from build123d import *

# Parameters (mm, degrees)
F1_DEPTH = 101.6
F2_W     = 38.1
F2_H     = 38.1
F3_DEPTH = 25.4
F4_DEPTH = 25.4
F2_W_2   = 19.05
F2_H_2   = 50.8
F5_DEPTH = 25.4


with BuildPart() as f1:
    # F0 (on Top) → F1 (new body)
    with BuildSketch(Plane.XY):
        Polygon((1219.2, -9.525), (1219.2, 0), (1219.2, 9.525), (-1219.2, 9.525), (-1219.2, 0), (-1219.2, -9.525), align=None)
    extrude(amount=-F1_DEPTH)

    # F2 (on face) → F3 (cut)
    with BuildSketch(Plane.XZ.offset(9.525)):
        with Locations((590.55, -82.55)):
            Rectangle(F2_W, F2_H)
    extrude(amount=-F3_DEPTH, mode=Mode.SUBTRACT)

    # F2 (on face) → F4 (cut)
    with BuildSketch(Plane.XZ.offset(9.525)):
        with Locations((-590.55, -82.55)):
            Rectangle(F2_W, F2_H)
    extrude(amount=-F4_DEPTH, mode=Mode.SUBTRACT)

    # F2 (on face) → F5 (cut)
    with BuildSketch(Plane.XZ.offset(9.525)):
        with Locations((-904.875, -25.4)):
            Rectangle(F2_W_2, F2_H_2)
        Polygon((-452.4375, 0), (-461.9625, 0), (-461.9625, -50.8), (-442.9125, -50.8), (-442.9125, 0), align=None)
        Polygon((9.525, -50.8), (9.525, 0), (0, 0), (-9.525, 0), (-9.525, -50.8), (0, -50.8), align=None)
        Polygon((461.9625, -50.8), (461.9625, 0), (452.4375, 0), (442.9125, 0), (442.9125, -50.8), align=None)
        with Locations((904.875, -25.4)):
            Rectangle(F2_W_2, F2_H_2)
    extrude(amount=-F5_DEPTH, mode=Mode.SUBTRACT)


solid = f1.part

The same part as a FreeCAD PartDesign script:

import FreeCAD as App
import Part
import Sketcher
from FreeCAD import Vector
Q = App.Units.Quantity

doc = App.newDocument("Part")
body = doc.addObject("PartDesign::Body", "Body")

sketch1 = body.newObject("Sketcher::SketchObject", "Sketch")
sketch1.AttachmentSupport = (doc.getObject("XY_Plane"), [""])
sketch1.MapMode = "FlatFace"
sketch1.addGeometry([
    Part.LineSegment(Vector(1219, -10, 0), Vector(1219, 10, 0)),
    Part.LineSegment(Vector(1219, 10, 0), Vector(-1219, 10, 0)),
    Part.LineSegment(Vector(-1219, 10, 0), Vector(-1219, -10, 0)),
    Part.LineSegment(Vector(-1219, -10, 0), Vector(1219, -10, 0)),
], False)
sketch1.addConstraint([
    Sketcher.Constraint("Coincident", 0, 2, 1, 1),
    Sketcher.Constraint("Coincident", 1, 2, 2, 1),
    Sketcher.Constraint("Coincident", 2, 2, 3, 1),
    Sketcher.Constraint("Coincident", 3, 2, 0, 1),
    Sketcher.Constraint("Vertical", 0),
    Sketcher.Constraint("Horizontal", 1),
    Sketcher.Constraint("Vertical", 2),
    Sketcher.Constraint("Horizontal", 3),
    Sketcher.Constraint("Symmetric", 0, 2, 2, 2, -1, 1),
    Sketcher.Constraint("DistanceX", 1, 2, 1, 1, Q("96 in")),
    Sketcher.Constraint("DistanceY", 0, 1, 0, 2, Q("0.75 in")),
])
pad1 = body.newObject("PartDesign::Pad", "Pad")
pad1.Profile = sketch1
pad1.Length = Q("4 in")
pad1.Reversed = True

sketch2 = body.newObject("Sketcher::SketchObject", "Sketch001")
sketch2.AttachmentSupport = (doc.getObject("XZ_Plane"), [""])
sketch2.MapMode = "FlatFace"
sketch2.AttachmentOffset = App.Placement(Vector(0, 0, 0.375 * 25.4), App.Rotation())
sketch2.addGeometry([
    Part.LineSegment(Vector(572, -64, 0), Vector(572, -102, 0)),
    Part.LineSegment(Vector(572, -102, 0), Vector(610, -102, 0)),
    Part.LineSegment(Vector(610, -102, 0), Vector(610, -64, 0)),
    Part.LineSegment(Vector(610, -64, 0), Vector(572, -64, 0)),
], False)
sketch2.addConstraint([
    Sketcher.Constraint("Coincident", 0, 2, 1, 1),
    Sketcher.Constraint("Coincident", 1, 2, 2, 1),
    Sketcher.Constraint("Coincident", 2, 2, 3, 1),
    Sketcher.Constraint("Coincident", 3, 2, 0, 1),
    Sketcher.Constraint("Vertical", 0),
    Sketcher.Constraint("Horizontal", 1),
    Sketcher.Constraint("Vertical", 2),
    Sketcher.Constraint("Horizontal", 3),
    Sketcher.Constraint("Equal", 3, 0),
    Sketcher.Constraint("DistanceX", 1, 1, 1, 2, Q("1.5 in")),
    Sketcher.Constraint("DistanceY", 0, 2, -1, 1, Q("4 in")),
    Sketcher.Constraint("DistanceX", -1, 1, 1, 2, Q("24 in")),
])
pocket1 = body.newObject("PartDesign::Pocket", "Pocket")
pocket1.Profile = sketch2
pocket1.Length = Q("1 in")

sketch3 = body.newObject("Sketcher::SketchObject", "Sketch002")
sketch3.AttachmentSupport = (doc.getObject("XZ_Plane"), [""])
sketch3.MapMode = "FlatFace"
sketch3.AttachmentOffset = App.Placement(Vector(0, 0, 0.375 * 25.4), App.Rotation())
sketch3.addGeometry([
    Part.LineSegment(Vector(-610, -64, 0), Vector(-610, -102, 0)),
    Part.LineSegment(Vector(-610, -102, 0), Vector(-572, -102, 0)),
    Part.LineSegment(Vector(-572, -102, 0), Vector(-572, -64, 0)),
    Part.LineSegment(Vector(-572, -64, 0), Vector(-610, -64, 0)),
], False)
sketch3.addConstraint([
    Sketcher.Constraint("Coincident", 0, 2, 1, 1),
    Sketcher.Constraint("Coincident", 1, 2, 2, 1),
    Sketcher.Constraint("Coincident", 2, 2, 3, 1),
    Sketcher.Constraint("Coincident", 3, 2, 0, 1),
    Sketcher.Constraint("Vertical", 0),
    Sketcher.Constraint("Horizontal", 1),
    Sketcher.Constraint("Vertical", 2),
    Sketcher.Constraint("Horizontal", 3),
    Sketcher.Constraint("Equal", 3, 0),
    Sketcher.Constraint("DistanceX", 1, 1, 1, 2, Q("1.5 in")),
    Sketcher.Constraint("DistanceX", 0, 2, -1, 1, Q("24 in")),
    Sketcher.Constraint("DistanceY", 0, 2, -1, 1, Q("4 in")),
])
pocket2 = body.newObject("PartDesign::Pocket", "Pocket001")
pocket2.Profile = sketch3
pocket2.Length = Q("1 in")

sketch4 = body.newObject("Sketcher::SketchObject", "Sketch003")
sketch4.AttachmentSupport = (doc.getObject("XZ_Plane"), [""])
sketch4.MapMode = "FlatFace"
sketch4.AttachmentOffset = App.Placement(Vector(0, 0, 0.375 * 25.4), App.Rotation())
sketch4.addGeometry([
    Part.LineSegment(Vector(-914, 0, 0), Vector(-914, -51, 0)),
    Part.LineSegment(Vector(-914, -51, 0), Vector(-895, -51, 0)),
    Part.LineSegment(Vector(-895, -51, 0), Vector(-895, 0, 0)),
    Part.LineSegment(Vector(-895, 0, 0), Vector(-914, 0, 0)),
    Part.LineSegment(Vector(-462, 0, 0), Vector(-462, -51, 0)),
    Part.LineSegment(Vector(-462, -51, 0), Vector(-443, -51, 0)),
    Part.LineSegment(Vector(-443, -51, 0), Vector(-443, 0, 0)),
    Part.LineSegment(Vector(-443, 0, 0), Vector(-462, 0, 0)),
    Part.LineSegment(Vector(10, -51, 0), Vector(10, 0, 0)),
    Part.LineSegment(Vector(10, 0, 0), Vector(-10, 0, 0)),
    Part.LineSegment(Vector(-10, 0, 0), Vector(-10, -51, 0)),
    Part.LineSegment(Vector(-10, -51, 0), Vector(10, -51, 0)),
    Part.LineSegment(Vector(462, -51, 0), Vector(462, 0, 0)),
    Part.LineSegment(Vector(462, 0, 0), Vector(443, 0, 0)),
    Part.LineSegment(Vector(443, 0, 0), Vector(443, -51, 0)),
    Part.LineSegment(Vector(443, -51, 0), Vector(462, -51, 0)),
    Part.LineSegment(Vector(895, 0, 0), Vector(895, -51, 0)),
    Part.LineSegment(Vector(895, -51, 0), Vector(914, -51, 0)),
    Part.LineSegment(Vector(914, -51, 0), Vector(914, 0, 0)),
    Part.LineSegment(Vector(914, 0, 0), Vector(895, 0, 0)),
], False)
sketch4.addConstraint([
    Sketcher.Constraint("Coincident", 0, 2, 1, 1),
    Sketcher.Constraint("Coincident", 1, 2, 2, 1),
    Sketcher.Constraint("Coincident", 2, 2, 3, 1),
    Sketcher.Constraint("Coincident", 3, 2, 0, 1),
    Sketcher.Constraint("Coincident", 4, 2, 5, 1),
    Sketcher.Constraint("Coincident", 5, 2, 6, 1),
    Sketcher.Constraint("Coincident", 6, 2, 7, 1),
    Sketcher.Constraint("Coincident", 7, 2, 4, 1),
    Sketcher.Constraint("Coincident", 8, 2, 9, 1),
    Sketcher.Constraint("Coincident", 9, 2, 10, 1),
    Sketcher.Constraint("Coincident", 10, 2, 11, 1),
    Sketcher.Constraint("Coincident", 11, 2, 8, 1),
    Sketcher.Constraint("Coincident", 12, 2, 13, 1),
    Sketcher.Constraint("Coincident", 13, 2, 14, 1),
    Sketcher.Constraint("Coincident", 14, 2, 15, 1),
    Sketcher.Constraint("Coincident", 15, 2, 12, 1),
    Sketcher.Constraint("Coincident", 16, 2, 17, 1),
    Sketcher.Constraint("Coincident", 17, 2, 18, 1),
    Sketcher.Constraint("Coincident", 18, 2, 19, 1),
    Sketcher.Constraint("Coincident", 19, 2, 16, 1),
    Sketcher.Constraint("Vertical", 0),
    Sketcher.Constraint("Horizontal", 1),
    Sketcher.Constraint("Vertical", 2),
    Sketcher.Constraint("Horizontal", 3),
    Sketcher.Constraint("Vertical", 4),
    Sketcher.Constraint("Horizontal", 5),
    Sketcher.Constraint("Vertical", 6),
    Sketcher.Constraint("Horizontal", 7),
    Sketcher.Constraint("Vertical", 8),
    Sketcher.Constraint("Horizontal", 9),
    Sketcher.Constraint("Vertical", 10),
    Sketcher.Constraint("Horizontal", 11),
    Sketcher.Constraint("Vertical", 12),
    Sketcher.Constraint("Horizontal", 13),
    Sketcher.Constraint("Vertical", 14),
    Sketcher.Constraint("Horizontal", 15),
    Sketcher.Constraint("Vertical", 16),
    Sketcher.Constraint("Horizontal", 17),
    Sketcher.Constraint("Vertical", 18),
    Sketcher.Constraint("Horizontal", 19),
    Sketcher.Constraint("Symmetric", 8, 2, 9, 2, -1, 1),
    Sketcher.Constraint("Symmetric", 7, 2, 12, 2, -1, 1),
    Sketcher.Constraint("Symmetric", 3, 2, 18, 2, -1, 1),
    Sketcher.Constraint("Symmetric", 6, 2, 13, 2, -2),
    Sketcher.Constraint("Symmetric", 1, 2, 16, 2, -2),
    Sketcher.Constraint("PointOnObject", 2, 2, -1),
    Sketcher.Constraint("Horizontal", 1, 2, 4, 2),
    Sketcher.Constraint("Horizontal", 5, 2, 10, 2),
    Sketcher.Constraint("Horizontal", 11, 2, 14, 2),
    Sketcher.Constraint("Equal", 3, 5),
    Sketcher.Constraint("Equal", 7, 9),
    Sketcher.Constraint("DistanceY", 0, 2, 0, 1, Q("2 in")),
    Sketcher.Constraint("DistanceX", 0, 2, -1, 1, Q("36 in")),
    Sketcher.Constraint("DistanceX", 1, 1, 1, 2, Q("0.75 in")),
    Sketcher.Constraint("DistanceX", 4, 2, -1, 1, Q("18.1875 in")),
])
pocket3 = body.newObject("PartDesign::Pocket", "Pocket002")
pocket3.Profile = sketch4
pocket3.Length = Q("1 in")

doc.recompute()
